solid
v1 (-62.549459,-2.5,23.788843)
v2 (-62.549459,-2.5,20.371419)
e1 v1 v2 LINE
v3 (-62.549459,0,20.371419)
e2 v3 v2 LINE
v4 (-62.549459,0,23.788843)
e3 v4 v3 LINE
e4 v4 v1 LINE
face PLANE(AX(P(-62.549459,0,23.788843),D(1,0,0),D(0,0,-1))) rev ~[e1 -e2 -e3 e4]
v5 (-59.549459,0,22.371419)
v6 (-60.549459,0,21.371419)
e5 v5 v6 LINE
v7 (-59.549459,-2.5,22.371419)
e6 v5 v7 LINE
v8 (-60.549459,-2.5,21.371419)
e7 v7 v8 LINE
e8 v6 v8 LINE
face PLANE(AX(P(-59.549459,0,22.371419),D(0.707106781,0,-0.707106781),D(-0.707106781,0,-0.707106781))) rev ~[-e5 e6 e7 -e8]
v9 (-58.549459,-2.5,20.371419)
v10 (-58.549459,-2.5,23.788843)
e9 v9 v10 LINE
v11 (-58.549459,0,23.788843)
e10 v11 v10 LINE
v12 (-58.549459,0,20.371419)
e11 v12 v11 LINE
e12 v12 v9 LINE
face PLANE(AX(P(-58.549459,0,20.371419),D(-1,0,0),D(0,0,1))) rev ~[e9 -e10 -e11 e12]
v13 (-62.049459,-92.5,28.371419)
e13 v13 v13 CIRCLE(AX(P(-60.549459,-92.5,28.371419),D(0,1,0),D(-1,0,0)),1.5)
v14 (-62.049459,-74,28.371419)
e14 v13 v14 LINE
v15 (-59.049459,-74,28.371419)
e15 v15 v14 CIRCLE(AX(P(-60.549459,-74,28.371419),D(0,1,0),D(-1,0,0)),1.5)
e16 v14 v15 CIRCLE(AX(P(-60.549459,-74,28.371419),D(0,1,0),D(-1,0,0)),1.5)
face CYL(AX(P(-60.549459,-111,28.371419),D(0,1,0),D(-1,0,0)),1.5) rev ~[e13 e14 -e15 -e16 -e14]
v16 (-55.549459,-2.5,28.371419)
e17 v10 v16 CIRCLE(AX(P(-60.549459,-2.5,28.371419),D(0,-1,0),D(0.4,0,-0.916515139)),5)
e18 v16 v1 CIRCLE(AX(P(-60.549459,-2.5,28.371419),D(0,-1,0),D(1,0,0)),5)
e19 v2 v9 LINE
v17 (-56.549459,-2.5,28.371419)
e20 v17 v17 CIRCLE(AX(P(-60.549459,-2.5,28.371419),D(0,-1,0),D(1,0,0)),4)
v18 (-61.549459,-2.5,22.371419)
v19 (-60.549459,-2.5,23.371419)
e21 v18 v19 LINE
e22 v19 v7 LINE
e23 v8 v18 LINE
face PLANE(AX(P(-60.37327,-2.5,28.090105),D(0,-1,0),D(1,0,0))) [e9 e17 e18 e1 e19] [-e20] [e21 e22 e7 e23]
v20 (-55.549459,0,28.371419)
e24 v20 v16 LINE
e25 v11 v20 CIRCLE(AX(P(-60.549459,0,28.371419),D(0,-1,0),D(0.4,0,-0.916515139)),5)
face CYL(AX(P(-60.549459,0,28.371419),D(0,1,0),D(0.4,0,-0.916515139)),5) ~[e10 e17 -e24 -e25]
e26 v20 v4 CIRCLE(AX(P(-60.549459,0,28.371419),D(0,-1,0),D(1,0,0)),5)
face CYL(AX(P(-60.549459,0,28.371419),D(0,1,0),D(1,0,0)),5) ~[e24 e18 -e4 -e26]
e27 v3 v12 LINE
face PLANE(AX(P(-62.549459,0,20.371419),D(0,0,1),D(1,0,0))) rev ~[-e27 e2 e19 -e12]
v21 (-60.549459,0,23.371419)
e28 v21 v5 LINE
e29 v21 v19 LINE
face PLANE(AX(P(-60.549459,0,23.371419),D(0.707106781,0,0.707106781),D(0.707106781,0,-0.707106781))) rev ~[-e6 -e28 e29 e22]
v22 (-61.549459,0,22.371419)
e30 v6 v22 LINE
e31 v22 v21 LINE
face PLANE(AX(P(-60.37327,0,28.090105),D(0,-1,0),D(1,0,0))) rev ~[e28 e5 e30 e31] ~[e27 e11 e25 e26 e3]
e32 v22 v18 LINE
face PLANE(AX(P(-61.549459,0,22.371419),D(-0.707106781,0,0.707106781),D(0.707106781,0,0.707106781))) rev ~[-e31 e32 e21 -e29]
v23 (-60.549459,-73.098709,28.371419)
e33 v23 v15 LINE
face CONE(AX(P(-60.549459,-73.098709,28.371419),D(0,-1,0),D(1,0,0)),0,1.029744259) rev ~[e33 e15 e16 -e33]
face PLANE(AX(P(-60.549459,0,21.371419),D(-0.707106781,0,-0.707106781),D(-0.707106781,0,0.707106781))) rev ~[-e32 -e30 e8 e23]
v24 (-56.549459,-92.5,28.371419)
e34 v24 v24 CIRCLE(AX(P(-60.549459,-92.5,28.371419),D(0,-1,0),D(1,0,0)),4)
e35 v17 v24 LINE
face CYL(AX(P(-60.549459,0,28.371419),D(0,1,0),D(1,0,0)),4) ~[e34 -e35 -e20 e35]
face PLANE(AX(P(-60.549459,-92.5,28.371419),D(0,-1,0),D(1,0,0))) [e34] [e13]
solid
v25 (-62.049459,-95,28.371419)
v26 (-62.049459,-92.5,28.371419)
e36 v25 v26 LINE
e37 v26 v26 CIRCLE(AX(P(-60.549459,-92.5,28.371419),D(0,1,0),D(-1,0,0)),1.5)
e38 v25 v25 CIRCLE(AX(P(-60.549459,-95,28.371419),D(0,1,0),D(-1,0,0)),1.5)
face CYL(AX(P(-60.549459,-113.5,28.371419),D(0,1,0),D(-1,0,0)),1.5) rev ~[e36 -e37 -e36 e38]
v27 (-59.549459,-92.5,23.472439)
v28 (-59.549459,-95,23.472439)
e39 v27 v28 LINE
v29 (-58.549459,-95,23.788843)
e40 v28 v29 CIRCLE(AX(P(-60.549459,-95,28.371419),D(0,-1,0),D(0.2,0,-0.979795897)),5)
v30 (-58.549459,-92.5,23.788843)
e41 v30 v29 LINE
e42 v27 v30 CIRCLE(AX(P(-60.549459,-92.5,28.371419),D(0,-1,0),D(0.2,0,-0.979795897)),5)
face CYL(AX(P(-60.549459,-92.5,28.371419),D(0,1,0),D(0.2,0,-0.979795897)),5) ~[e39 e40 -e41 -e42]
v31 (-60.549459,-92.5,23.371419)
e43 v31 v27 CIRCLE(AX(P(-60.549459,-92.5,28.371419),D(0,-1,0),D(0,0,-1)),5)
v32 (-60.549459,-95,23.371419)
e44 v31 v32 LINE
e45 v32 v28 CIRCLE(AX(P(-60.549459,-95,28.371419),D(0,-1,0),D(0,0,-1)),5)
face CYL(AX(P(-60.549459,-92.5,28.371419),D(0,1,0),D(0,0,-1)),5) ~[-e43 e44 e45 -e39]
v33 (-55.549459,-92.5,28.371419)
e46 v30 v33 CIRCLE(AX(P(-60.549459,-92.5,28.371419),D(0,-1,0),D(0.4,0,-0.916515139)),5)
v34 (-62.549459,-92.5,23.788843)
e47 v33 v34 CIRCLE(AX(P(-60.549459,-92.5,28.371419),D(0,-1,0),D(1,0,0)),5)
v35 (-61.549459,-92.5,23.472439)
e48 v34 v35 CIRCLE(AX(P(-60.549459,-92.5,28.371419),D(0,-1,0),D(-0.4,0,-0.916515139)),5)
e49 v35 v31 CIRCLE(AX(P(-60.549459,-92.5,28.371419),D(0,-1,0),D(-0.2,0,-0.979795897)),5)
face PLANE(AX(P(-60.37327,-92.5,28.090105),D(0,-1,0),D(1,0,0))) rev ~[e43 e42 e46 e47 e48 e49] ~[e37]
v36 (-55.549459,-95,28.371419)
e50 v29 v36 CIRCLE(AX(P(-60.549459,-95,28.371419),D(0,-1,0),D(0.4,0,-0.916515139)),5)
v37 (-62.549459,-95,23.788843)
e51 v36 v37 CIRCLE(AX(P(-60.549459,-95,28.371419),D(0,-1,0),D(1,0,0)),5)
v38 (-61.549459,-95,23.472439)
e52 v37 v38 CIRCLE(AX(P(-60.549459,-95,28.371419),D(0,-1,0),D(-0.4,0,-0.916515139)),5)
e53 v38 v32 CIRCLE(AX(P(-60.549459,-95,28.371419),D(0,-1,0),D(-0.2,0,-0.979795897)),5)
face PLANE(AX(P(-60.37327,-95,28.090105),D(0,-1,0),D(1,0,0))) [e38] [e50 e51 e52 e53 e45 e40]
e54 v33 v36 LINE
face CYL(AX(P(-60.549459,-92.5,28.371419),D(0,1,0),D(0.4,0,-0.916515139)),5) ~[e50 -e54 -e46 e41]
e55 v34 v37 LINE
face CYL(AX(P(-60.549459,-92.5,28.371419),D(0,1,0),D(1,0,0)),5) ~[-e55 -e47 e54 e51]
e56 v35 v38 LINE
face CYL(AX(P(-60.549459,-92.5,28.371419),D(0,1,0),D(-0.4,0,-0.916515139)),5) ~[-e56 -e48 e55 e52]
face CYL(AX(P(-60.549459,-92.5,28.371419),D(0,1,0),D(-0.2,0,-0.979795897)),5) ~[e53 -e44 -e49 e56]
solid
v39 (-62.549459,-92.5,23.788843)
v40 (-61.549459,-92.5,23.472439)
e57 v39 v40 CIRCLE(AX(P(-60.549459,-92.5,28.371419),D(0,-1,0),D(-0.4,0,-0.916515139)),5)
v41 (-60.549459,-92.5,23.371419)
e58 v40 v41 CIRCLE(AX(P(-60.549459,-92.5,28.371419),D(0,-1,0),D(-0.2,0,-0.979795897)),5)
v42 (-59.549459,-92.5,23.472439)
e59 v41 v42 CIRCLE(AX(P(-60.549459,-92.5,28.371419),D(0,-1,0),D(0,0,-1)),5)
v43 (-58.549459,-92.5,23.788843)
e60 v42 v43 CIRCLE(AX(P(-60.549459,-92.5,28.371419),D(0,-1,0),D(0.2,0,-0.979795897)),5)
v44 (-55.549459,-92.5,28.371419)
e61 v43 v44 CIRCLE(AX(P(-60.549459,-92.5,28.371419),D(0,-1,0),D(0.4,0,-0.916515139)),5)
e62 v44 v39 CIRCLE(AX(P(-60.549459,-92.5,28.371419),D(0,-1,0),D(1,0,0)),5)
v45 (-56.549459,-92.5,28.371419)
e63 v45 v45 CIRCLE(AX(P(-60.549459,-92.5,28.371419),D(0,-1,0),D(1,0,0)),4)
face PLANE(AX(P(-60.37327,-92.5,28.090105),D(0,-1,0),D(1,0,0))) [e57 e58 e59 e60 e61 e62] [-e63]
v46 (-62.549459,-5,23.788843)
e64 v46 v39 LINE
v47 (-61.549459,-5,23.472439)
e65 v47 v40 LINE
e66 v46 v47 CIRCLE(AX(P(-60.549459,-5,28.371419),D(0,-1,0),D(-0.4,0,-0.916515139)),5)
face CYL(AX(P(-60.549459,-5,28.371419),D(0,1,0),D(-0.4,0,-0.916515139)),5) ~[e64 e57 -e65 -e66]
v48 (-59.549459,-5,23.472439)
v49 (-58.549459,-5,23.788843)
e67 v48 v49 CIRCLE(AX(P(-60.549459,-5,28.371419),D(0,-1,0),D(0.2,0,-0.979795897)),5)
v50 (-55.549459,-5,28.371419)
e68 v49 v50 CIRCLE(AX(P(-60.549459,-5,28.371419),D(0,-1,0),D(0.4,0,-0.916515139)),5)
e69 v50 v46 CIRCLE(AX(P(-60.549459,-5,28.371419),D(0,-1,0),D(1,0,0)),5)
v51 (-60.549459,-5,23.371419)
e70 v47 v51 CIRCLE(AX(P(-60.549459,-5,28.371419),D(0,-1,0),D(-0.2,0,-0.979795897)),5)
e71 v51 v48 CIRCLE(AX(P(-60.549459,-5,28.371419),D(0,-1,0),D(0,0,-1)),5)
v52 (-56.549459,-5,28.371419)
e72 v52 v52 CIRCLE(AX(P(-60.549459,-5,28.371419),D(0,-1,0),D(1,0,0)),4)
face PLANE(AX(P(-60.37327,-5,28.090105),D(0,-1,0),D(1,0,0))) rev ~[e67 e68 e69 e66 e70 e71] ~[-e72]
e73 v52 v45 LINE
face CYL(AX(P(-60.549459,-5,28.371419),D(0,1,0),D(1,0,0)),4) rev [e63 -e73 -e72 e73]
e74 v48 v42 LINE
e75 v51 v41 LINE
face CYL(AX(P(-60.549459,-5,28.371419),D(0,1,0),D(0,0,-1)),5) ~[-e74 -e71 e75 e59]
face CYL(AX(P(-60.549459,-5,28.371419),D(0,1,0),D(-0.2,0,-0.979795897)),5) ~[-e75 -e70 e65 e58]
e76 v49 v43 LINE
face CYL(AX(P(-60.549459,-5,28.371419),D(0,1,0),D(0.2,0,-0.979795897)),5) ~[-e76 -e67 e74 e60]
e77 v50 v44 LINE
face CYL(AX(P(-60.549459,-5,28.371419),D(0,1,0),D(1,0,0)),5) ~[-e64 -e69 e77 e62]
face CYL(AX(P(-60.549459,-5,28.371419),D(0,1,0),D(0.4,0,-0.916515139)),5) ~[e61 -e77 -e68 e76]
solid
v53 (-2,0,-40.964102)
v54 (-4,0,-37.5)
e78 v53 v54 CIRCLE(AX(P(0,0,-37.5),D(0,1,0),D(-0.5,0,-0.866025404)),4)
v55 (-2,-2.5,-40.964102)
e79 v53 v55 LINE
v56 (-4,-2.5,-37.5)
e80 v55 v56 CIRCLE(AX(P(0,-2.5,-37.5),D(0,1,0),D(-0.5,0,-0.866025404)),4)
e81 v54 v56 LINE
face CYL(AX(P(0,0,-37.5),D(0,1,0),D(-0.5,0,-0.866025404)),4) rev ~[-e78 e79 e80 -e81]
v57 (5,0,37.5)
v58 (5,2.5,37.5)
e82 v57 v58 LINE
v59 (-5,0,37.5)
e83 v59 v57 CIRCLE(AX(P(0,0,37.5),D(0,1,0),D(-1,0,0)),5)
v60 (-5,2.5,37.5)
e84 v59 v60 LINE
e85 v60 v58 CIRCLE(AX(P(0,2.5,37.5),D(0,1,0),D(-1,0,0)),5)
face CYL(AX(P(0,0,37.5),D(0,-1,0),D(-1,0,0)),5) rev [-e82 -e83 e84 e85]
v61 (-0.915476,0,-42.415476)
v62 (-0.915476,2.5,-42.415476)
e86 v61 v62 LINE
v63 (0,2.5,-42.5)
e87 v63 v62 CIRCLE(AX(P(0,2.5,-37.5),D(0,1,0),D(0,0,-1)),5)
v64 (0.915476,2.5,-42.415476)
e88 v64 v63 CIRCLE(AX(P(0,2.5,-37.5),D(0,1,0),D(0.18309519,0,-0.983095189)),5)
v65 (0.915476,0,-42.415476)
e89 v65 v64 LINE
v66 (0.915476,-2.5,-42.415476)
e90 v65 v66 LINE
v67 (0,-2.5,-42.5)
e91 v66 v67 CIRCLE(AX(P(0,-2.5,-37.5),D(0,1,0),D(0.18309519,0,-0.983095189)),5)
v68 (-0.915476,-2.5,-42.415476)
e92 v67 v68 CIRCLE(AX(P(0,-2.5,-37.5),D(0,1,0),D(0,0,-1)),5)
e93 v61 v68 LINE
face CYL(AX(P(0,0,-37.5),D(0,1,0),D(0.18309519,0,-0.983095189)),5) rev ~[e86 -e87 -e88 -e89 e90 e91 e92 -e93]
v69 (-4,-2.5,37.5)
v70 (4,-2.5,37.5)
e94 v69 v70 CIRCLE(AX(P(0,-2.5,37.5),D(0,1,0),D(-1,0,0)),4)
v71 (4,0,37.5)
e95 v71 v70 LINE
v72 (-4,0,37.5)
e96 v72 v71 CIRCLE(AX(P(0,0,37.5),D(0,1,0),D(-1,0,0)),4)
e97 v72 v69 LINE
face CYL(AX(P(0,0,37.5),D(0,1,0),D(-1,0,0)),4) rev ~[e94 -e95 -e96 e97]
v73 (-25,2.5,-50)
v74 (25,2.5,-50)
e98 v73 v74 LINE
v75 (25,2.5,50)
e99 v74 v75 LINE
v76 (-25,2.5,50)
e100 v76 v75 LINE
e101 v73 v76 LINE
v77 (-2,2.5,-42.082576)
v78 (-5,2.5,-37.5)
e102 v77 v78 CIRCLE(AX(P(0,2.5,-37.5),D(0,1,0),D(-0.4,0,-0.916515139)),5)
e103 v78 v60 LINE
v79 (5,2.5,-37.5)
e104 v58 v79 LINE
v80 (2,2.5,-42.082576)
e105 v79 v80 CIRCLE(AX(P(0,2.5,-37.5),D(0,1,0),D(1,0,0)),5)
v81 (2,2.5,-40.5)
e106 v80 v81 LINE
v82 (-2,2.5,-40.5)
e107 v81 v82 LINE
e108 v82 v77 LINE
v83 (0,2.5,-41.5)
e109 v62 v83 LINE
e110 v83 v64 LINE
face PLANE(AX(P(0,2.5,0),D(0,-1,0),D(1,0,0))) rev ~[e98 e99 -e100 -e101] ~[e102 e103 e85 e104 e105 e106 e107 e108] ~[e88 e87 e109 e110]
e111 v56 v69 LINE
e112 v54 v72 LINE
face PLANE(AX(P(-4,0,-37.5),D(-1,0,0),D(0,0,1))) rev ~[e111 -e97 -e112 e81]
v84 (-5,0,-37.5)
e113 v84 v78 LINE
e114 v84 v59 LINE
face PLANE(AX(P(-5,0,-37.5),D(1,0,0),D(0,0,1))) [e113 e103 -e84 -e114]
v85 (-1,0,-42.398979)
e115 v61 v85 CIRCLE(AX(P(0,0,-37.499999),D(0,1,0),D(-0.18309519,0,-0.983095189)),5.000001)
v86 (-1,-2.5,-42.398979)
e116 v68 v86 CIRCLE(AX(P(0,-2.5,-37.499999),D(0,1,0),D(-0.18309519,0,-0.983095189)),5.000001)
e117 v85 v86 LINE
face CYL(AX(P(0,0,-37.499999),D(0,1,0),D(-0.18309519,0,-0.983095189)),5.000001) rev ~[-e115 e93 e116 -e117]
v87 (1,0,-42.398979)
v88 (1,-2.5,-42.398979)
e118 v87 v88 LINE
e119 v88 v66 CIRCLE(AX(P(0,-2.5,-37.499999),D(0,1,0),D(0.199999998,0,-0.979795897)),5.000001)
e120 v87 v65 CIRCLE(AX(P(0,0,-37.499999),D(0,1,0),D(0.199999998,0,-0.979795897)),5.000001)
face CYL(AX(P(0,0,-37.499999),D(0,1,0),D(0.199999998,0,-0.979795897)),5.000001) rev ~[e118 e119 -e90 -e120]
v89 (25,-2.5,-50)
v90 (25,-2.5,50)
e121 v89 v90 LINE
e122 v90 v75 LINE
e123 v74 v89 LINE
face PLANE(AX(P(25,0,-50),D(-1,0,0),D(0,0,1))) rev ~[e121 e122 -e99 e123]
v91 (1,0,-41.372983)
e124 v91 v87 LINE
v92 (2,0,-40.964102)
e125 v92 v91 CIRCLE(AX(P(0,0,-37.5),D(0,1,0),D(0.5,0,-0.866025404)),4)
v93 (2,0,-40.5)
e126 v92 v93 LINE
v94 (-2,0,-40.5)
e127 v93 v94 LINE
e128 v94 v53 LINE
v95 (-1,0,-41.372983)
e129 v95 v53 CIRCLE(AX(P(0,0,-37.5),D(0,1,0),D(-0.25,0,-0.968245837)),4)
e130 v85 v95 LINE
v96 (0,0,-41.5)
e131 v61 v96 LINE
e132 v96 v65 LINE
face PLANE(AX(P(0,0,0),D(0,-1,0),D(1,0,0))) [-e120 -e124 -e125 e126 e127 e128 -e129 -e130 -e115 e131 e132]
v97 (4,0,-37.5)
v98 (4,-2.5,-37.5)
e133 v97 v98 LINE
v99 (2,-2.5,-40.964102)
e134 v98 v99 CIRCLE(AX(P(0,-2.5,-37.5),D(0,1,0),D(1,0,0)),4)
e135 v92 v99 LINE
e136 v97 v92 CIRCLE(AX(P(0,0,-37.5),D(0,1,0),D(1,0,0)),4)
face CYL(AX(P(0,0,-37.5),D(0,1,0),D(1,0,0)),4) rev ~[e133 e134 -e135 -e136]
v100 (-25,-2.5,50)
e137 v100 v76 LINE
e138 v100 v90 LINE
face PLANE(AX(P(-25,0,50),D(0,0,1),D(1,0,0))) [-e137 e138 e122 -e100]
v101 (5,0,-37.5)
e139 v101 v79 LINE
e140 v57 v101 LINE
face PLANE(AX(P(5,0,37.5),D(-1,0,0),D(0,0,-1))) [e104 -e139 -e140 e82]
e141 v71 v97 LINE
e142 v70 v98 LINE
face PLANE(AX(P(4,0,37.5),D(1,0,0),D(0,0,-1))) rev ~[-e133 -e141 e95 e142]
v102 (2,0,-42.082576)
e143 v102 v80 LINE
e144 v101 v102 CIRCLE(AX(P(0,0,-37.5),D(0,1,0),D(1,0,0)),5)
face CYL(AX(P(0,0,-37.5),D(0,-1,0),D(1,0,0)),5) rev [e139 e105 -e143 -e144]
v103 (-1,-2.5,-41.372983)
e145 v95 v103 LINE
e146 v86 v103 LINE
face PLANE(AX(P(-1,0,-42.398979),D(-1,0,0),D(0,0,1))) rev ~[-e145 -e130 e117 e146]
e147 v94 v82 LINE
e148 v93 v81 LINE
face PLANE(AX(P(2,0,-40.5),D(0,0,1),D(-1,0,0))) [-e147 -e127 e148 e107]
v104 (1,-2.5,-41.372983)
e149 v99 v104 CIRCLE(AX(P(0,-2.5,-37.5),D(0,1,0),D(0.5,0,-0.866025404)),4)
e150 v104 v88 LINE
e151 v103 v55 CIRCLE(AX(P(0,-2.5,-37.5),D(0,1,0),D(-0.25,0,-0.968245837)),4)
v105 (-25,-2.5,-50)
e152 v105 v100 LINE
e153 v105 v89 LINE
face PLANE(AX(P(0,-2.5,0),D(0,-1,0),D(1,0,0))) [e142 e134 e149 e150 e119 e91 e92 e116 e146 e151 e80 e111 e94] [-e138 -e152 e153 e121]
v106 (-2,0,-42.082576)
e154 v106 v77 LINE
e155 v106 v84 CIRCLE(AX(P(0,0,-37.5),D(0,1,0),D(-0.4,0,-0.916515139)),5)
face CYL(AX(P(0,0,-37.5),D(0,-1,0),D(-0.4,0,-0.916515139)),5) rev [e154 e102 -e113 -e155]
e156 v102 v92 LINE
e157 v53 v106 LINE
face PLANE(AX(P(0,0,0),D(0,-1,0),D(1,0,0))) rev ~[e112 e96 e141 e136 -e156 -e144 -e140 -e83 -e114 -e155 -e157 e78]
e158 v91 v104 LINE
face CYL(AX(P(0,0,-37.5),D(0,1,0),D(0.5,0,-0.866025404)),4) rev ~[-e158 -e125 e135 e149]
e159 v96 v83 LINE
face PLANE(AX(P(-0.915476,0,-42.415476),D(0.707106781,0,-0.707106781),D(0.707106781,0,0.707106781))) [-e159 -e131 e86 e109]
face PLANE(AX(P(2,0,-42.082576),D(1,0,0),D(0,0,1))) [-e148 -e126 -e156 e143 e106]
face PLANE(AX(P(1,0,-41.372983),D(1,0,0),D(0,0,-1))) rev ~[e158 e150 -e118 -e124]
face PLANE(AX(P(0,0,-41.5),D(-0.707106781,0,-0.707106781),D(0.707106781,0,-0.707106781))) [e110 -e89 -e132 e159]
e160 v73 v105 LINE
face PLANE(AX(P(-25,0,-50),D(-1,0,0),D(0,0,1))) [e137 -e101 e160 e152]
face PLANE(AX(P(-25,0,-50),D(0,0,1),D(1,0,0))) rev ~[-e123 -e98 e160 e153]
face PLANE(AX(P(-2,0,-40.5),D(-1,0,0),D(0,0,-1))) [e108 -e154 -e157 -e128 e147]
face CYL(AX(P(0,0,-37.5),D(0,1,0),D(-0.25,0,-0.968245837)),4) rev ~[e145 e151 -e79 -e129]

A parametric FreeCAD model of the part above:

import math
import FreeCAD as App
import Part
import Sketcher
from FreeCAD import Vector


def add_polygon(sketch, points):
    """Adds a closed chain of lines whose ends are joined by coincident constraints."""
    first, n = sketch.GeometryCount, len(points)
    for a, b in zip(points, points[1:] + points[:1]):
        sketch.addGeometry(Part.LineSegment(App.Vector(*a, 0), App.Vector(*b, 0)), False)
    for i in range(n):
        sketch.addConstraint(Sketcher.Constraint("Coincident", first + i, 2, first + (i + 1) % n, 1))

doc = App.newDocument("Part")
body = doc.addObject("PartDesign::Body", "Body")

sketch1 = body.newObject("Sketcher::SketchObject", "Sketch")
sketch1.AttachmentSupport = (doc.getObject("XZ_Plane"), [""])
sketch1.MapMode = "FlatFace"
add_polygon(sketch1, [(-25, 50), (-25, -50), (25, -50), (25, 50)])
sketch1.addGeometry(Part.LineSegment(Vector(0, -41.5, 0), Vector(0.9, -42.4, 0)), False)
sketch1.addGeometry(Part.ArcOfCircle(Part.Circle(Vector(0, -37.5, 0), Vector(0, 0, 1), 5), math.radians(-90), math.radians(-79.45)), False)
sketch1.addGeometry(Part.ArcOfCircle(Part.Circle(Vector(0, -37.5, 0), Vector(0, 0, 1), 5), math.radians(-100.55), math.radians(-90)), False)
sketch1.addGeometry(Part.LineSegment(Vector(-0.9, -42.4, 0), Vector(0, -41.5, 0)), False)
sketch1.addGeometry(Part.ArcOfCircle(Part.Circle(Vector(0, -37.5, 0), Vector(0, 0, 1), 5), math.radians(-66), math.radians(0)), False)
sketch1.addGeometry(Part.LineSegment(Vector(2, -42.1, 0), Vector(2, -40.5, 0)), False)
sketch1.addGeometry(Part.LineSegment(Vector(2, -40.5, 0), Vector(-2, -40.5, 0)), False)
sketch1.addGeometry(Part.LineSegment(Vector(-2, -40.5, 0), Vector(-2, -42.1, 0)), False)
sketch1.addGeometry(Part.ArcOfCircle(Part.Circle(Vector(0, -37.5, 0), Vector(0, 0, 1), 5), math.radians(180), math.radians(246)), False)
sketch1.addGeometry(Part.LineSegment(Vector(-5, -37.5, 0), Vector(-5, 37.5, 0)), False)
sketch1.addGeometry(Part.ArcOfCircle(Part.Circle(Vector(0, 37.5, 0), Vector(0, 0, 1), 5), math.radians(0), math.radians(180)), False)
sketch1.addGeometry(Part.LineSegment(Vector(5, 37.5, 0), Vector(5, -37.5, 0)), False)
sketch1.addConstraint([
    Sketcher.Constraint("Coincident", 4, 2, 5, 2),
    Sketcher.Constraint("Tangent", 5, 1, 6, 2),
    Sketcher.Constraint("Coincident", 6, 1, 7, 1),
    Sketcher.Constraint("Coincident", 7, 2, 4, 1),
    Sketcher.Constraint("Coincident", 8, 1, 9, 1),
    Sketcher.Constraint("Coincident", 9, 2, 10, 1),
    Sketcher.Constraint("Coincident", 10, 2, 11, 1),
    Sketcher.Constraint("Coincident", 11, 2, 12, 2),
    Sketcher.Constraint("Tangent", 12, 1, 13, 1),
    Sketcher.Constraint("Tangent", 13, 2, 14, 2),
    Sketcher.Constraint("Tangent", 14, 1, 15, 1),
    Sketcher.Constraint("Tangent", 15, 2, 8, 2),
    Sketcher.Constraint("Vertical", 0),
    Sketcher.Constraint("Horizontal", 1),
    Sketcher.Constraint("Vertical", 2),
    Sketcher.Constraint("Horizontal", 3),
    Sketcher.Constraint("Vertical", 9),
    Sketcher.Constraint("Horizontal", 10),
    Sketcher.Constraint("Vertical", 11),
    Sketcher.Constraint("Vertical", 13),
    Sketcher.Constraint("Vertical", 15),
    Sketcher.Constraint("Coincident", 8, 3, 5, 3),
    Sketcher.Constraint("Coincident", 12, 3, 5, 3),
    Sketcher.Constraint("Equal", 5, 6),
    Sketcher.Constraint("Equal", 6, 8),
    Sketcher.Constraint("Equal", 8, 12),
    Sketcher.Constraint("Symmetric", 5, 3, 14, 3, -1, 1),
    Sketcher.Constraint("Symmetric", 0, 2, 2, 2, -1, 1),
    Sketcher.Constraint("PointOnObject", 5, 1, -2),
    Sketcher.Constraint("PointOnObject", 7, 2, -2),
    Sketcher.Constraint("Perpendicular", 4, 7),
    Sketcher.Constraint("Horizontal", 4, 2, 6, 1),
    Sketcher.Constraint("Horizontal", 8, 1, 11, 2),
    Sketcher.Constraint("Radius", 5, 5.0),
    Sketcher.Constraint("DistanceX", 1, 1, 1, 2, 50.0),
    Sketcher.Constraint("DistanceX", 10, 2, 10, 1, 4.0),
    Sketcher.Constraint("DistanceY", 0, 2, 0, 1, 100.0),
    Sketcher.Constraint("DistanceY", 13, 1, 13, 2, 75.0),
    Sketcher.Constraint("DistanceY", 5, 1, 7, 2, 1.0),
    Sketcher.Constraint("DistanceY", 7, 2, 9, 2, 1.0),
])
pad1 = body.newObject("PartDesign::Pad", "Pad")
pad1.Profile = sketch1
pad1.Length = 2.5
pad1.Reversed = True

sketch2 = body.newObject("Sketcher::SketchObject", "Sketch001")
sketch2.AttachmentSupport = (doc.getObject("XZ_Plane"), [""])
sketch2.MapMode = "FlatFace"
add_polygon(sketch2, [(-25, 50), (-25, -50), (25, -50), (25, 50)])
sketch2.addGeometry(Part.ArcOfCircle(Part.Circle(Vector(0, -37.5, 0), Vector(0, 0, 1), 4), math.radians(-120), math.radians(-104.48)), False)
sketch2.addGeometry(Part.ArcOfCircle(Part.Circle(Vector(0, -37.5, 0), Vector(0, 0, 1), 4), math.radians(180), math.radians(240)), False)
sketch2.addGeometry(Part.LineSegment(Vector(-4, -37.5, 0), Vector(-4, 37.5, 0)), False)
sketch2.addGeometry(Part.ArcOfCircle(Part.Circle(Vector(0, 37.5, 0), Vector(0, 0, 1), 4), math.radians(0), math.radians(180)), False)
sketch2.addGeometry(Part.LineSegment(Vector(4, 37.5, 0), Vector(4, -37.5, 0)), False)
sketch2.addGeometry(Part.ArcOfCircle(Part.Circle(Vector(0, -37.5, 0), Vector(0, 0, 1), 4), math.radians(-60), math.radians(0)), False)
sketch2.addGeometry(Part.ArcOfCircle(Part.Circle(Vector(0, -37.5, 0), Vector(0, 0, 1), 4), math.radians(-75.52), math.radians(-60)), False)
sketch2.addGeometry(Part.LineSegment(Vector(1, -41.37, 0), Vector(1, -42.4, 0)), False)
sketch2.addGeometry(Part.ArcOfCircle(Part.Circle(Vector(0, -37.5, 0), Vector(0, 0, 1), 5), math.radians(-79.45), math.radians(-78.46)), False)
sketch2.addGeometry(Part.ArcOfCircle(Part.Circle(Vector(0, -37.5, 0), Vector(0, 0, 1), 5), math.radians(-90), math.radians(-79.45)), False)
sketch2.addGeometry(Part.ArcOfCircle(Part.Circle(Vector(0, -37.5, 0), Vector(0, 0, 1), 5), math.radians(-100.55), math.radians(-90)), False)
sketch2.addGeometry(Part.ArcOfCircle(Part.Circle(Vector(0, -37.5, 0), Vector(0, 0, 1), 5), math.radians(-101.54), math.radians(-100.55)), False)
sketch2.addGeometry(Part.LineSegment(Vector(-1, -42.4, 0), Vector(-1, -41.37, 0)), False)
sketch2.addConstraint([
    Sketcher.Constraint("Tangent", 4, 1, 5, 2),
    Sketcher.Constraint("Tangent", 5, 1, 6, 1),
    Sketcher.Constraint("Tangent", 6, 2, 7, 2),
    Sketcher.Constraint("Tangent", 7, 1, 8, 1),
    Sketcher.Constraint("Tangent", 8, 2, 9, 2),
    Sketcher.Constraint("Tangent", 9, 1, 10, 2),
    Sketcher.Constraint("Coincident", 10, 1, 11, 1),
    Sketcher.Constraint("Coincident", 11, 2, 12, 2),
    Sketcher.Constraint("Tangent", 12, 1, 13, 2),
    Sketcher.Constraint("Tangent", 13, 1, 14, 2),
    Sketcher.Constraint("Tangent", 14, 1, 15, 2),
    Sketcher.Constraint("Coincident", 15, 1, 16, 1),
    Sketcher.Constraint("Coincident", 16, 2, 4, 2),
    Sketcher.Constraint("Vertical", 0),
    Sketcher.Constraint("Horizontal", 1),
    Sketcher.Constraint("Vertical", 2),
    Sketcher.Constraint("Horizontal", 3),
    Sketcher.Constraint("Vertical", 6),
    Sketcher.Constraint("Vertical", 8),
    Sketcher.Constraint("Vertical", 11),
    Sketcher.Constraint("Vertical", 16),
    Sketcher.Constraint("Coincident", 9, 3, 4, 3),
    Sketcher.Constraint("Coincident", 12, 3, 4, 3),
    Sketcher.Constraint("Coincident", 14, 3, 4, 3),
    Sketcher.Constraint("Equal", 4, 5),
    Sketcher.Constraint("Equal", 5, 7),
    Sketcher.Constraint("Equal", 9, 10),
    Sketcher.Constraint("Equal", 14, 15),
    Sketcher.Constraint("Symmetric", 4, 3, 7, 3, -1, 1),
    Sketcher.Constraint("Symmetric", 0, 2, 2, 2, -1, 1),
    Sketcher.Constraint("PointOnObject", 13, 1, -2),
    Sketcher.Constraint("Horizontal", 4, 1, 9, 1),
    Sketcher.Constraint("Horizontal", 12, 1, 14, 1),
    Sketcher.Constraint("Horizontal", 11, 2, 15, 1),
    Sketcher.Constraint("Radius", 4, 4.0),
    Sketcher.Constraint("Radius", 12, 5.000001),
    Sketcher.Constraint("DistanceX", 1, 1, 1, 2, 50.0),
    Sketcher.Constraint("DistanceY", 0, 2, 0, 1, 100.0),
    Sketcher.Constraint("DistanceY", 6, 1, 6, 2, 75.0),
    Sketcher.Constraint("DistanceX", 4, 1, -1, 1, 2.0),
    Sketcher.Constraint("DistanceX", -1, 1, 10, 1, 1.0),
    Sketcher.Constraint("DistanceX", 14, 1, 12, 1, 1.830952),
])
pad2 = body.newObject("PartDesign::Pad", "Pad001")
pad2.Profile = sketch2
pad2.Length = 2.5
body2 = doc.addObject("PartDesign::Body", "Body001")

sketch3 = body2.newObject("Sketcher::SketchObject", "Sketch002")
sketch3.AttachmentSupport = (doc.getObject("XZ_Plane001"), [""])
sketch3.MapMode = "FlatFace"
sketch3.addGeometry(Part.ArcOfCircle(Part.Circle(Vector(-60.5, 28.4, 0), Vector(0, 0, 1), 5), math.radians(-66), math.radians(0)), False)
sketch3.addGeometry(Part.ArcOfCircle(Part.Circle(Vector(-60.5, 28.4, 0), Vector(0, 0, 1), 5), math.radians(0), math.radians(246)), False)
sketch3.addGeometry(Part.LineSegment(Vector(-62.5, 23.8, 0), Vector(-62.5, 20.4, 0)), False)
sketch3.addGeometry(Part.LineSegment(Vector(-62.5, 20.4, 0), Vector(-58.5, 20.4, 0)), False)
sketch3.addGeometry(Part.LineSegment(Vector(-58.5, 20.4, 0), Vector(-58.5, 23.8, 0)), False)
add_polygon(sketch3, [(-60.5, 21.4), (-61.5, 22.4), (-60.5, 23.4), (-59.5, 22.4)])
sketch3.addGeometry(Part.Circle(Vector(-60.5, 28.4, 0), Vector(0, 0, 1), 4), False)
sketch3.addConstraint([
    Sketcher.Constraint("Tangent", 0, 2, 1, 1),
    Sketcher.Constraint("Coincident", 1, 2, 2, 1),
    Sketcher.Constraint("Coincident", 2, 2, 3, 1),
    Sketcher.Constraint("Coincident", 3, 2, 4, 1),
    Sketcher.Constraint("Coincident", 4, 2, 0, 1),
    Sketcher.Constraint("Vertical", 2),
    Sketcher.Constraint("Horizontal", 3),
    Sketcher.Constraint("Vertical", 4),
    Sketcher.Constraint("Coincident", 9, 3, 0, 3),
    Sketcher.Constraint("Equal", 0, 1),
    Sketcher.Constraint("Perpendicular", 5, 6),
    Sketcher.Constraint("Perpendicular", 6, 7),
    Sketcher.Constraint("Perpendicular", 7, 8),
    Sketcher.Constraint("Horizontal", 9, 3, 0, 2),
    Sketcher.Constraint("Horizontal", 1, 2, 4, 2),
    Sketcher.Constraint("Horizontal", 5, 2, 7, 2),
    Sketcher.Constraint("Vertical", 9, 3, 6, 2),
    Sketcher.Constraint("Vertical", 6, 2, 8, 2),
    Sketcher.Constraint("Diameter", 9, 8.0),
    Sketcher.Constraint("Radius", 0, 5.0),
    Sketcher.Constraint("DistanceX", 3, 1, 3, 2, 4.0),
    Sketcher.Constraint("DistanceY", 2, 2, 0, 3, 8.0),
    Sketcher.Constraint("DistanceX", 1, 2, 5, 2, 1.0),
    Sketcher.Constraint("DistanceY", 2, 2, 5, 2, 2.0),
    Sketcher.Constraint("DistanceX", 0, 3, -1, 1, 60.549459),
    Sketcher.Constraint("DistanceY", -1, 1, 0, 3, 28.371419),
])
pad3 = body2.newObject("PartDesign::Pad", "Pad002")
pad3.Profile = sketch3
pad3.Length = 2.5

sketch4 = body2.newObject("Sketcher::SketchObject", "Sketch003")
sketch4.AttachmentSupport = (doc.getObject("XZ_Plane001"), [""])
sketch4.MapMode = "FlatFace"
sketch4.addGeometry(Part.Circle(Vector(-60.5, 28.4, 0), Vector(0, 0, 1), 4), False)
sketch4.addConstraint([
    Sketcher.Constraint("Diameter", 0, 8.0),
    Sketcher.Constraint("DistanceX", 0, 3, -1, 1, 60.549459),
    Sketcher.Constraint("DistanceY", -1, 1, 0, 3, 28.371419),
])
pad4 = body2.newObject("PartDesign::Pad", "Pad003")
pad4.Profile = sketch4
pad4.Length = 92.5

sketch5 = body2.newObject("Sketcher::SketchObject", "Sketch004")
sketch5.AttachmentSupport = (doc.getObject("XZ_Plane001"), [""])
sketch5.MapMode = "FlatFace"
sketch5.AttachmentOffset = App.Placement(Vector(0, 0, 92.5), App.Rotation())
sketch5.addGeometry(Part.Circle(Vector(-60.5, 28.4, 0), Vector(0, 0, 1), 1.5), False)
sketch5.addConstraint([
    Sketcher.Constraint("Diameter", 0, 3.0),
    Sketcher.Constraint("DistanceX", 0, 3, -1, 1, 60.549459),
    Sketcher.Constraint("DistanceY", -1, 1, 0, 3, 28.371419),
])
doc.recompute()
hole = body2.newObject("PartDesign::Hole", "Hole")
hole.Profile = sketch5
hole.ThreadType = "None"
hole.Diameter = 3
hole.DepthType = "Dimension"
hole.Depth = 18.5
hole.DrillPoint = "Angled"
hole.DrillPointAngle = 118
body3 = doc.addObject("PartDesign::Body", "Body002")

sketch6 = body3.newObject("Sketcher::SketchObject", "Sketch005")
sketch6.AttachmentSupport = (doc.getObject("XZ_Plane002"), [""])
sketch6.MapMode = "FlatFace"
sketch6.AttachmentOffset = App.Placement(Vector(0, 0, 5), App.Rotation())
sketch6.addGeometry([
    Part.ArcOfCircle(Part.Circle(Vector(-60.5, 28.4, 0), Vector(0, 0, 1), 5), math.radians(-66), math.radians(0)),
    Part.ArcOfCircle(Part.Circle(Vector(-60.5, 28.4, 0), Vector(0, 0, 1), 5), math.radians(0), math.radians(246)),
    Part.ArcOfCircle(Part.Circle(Vector(-60.5, 28.4, 0), Vector(0, 0, 1), 5), math.radians(-113.58), math.radians(-101.54)),
    Part.ArcOfCircle(Part.Circle(Vector(-60.5, 28.4, 0), Vector(0, 0, 1), 5), math.radians(-101.54), math.radians(-90)),
    Part.ArcOfCircle(Part.Circle(Vector(-60.5, 28.4, 0), Vector(0, 0, 1), 5), math.radians(-90), math.radians(-78.46)),
    Part.ArcOfCircle(Part.Circle(Vector(-60.5, 28.4, 0), Vector(0, 0, 1), 5), math.radians(-78.46), math.radians(-66.42)),
    Part.Circle(Vector(-60.5, 28.4, 0), Vector(0, 0, 1), 4),
], False)
sketch6.addConstraint([
    Sketcher.Constraint("Tangent", 0, 2, 1, 1),
    Sketcher.Constraint("Tangent", 1, 2, 2, 1),
    Sketcher.Constraint("Tangent", 2, 2, 3, 1),
    Sketcher.Constraint("Tangent", 3, 2, 4, 1),
    Sketcher.Constraint("Tangent", 4, 2, 5, 1),
    Sketcher.Constraint("Tangent", 5, 2, 0, 1),
    Sketcher.Constraint("Coincident", 2, 3, 0, 3),
    Sketcher.Constraint("Coincident", 6, 3, 0, 3),
    Sketcher.Constraint("Equal", 2, 3),
    Sketcher.Constraint("Horizontal", 6, 3, 0, 2),
    Sketcher.Constraint("Horizontal", 2, 2, 4, 2),
    Sketcher.Constraint("Horizontal", 1, 2, 5, 2),
    Sketcher.Constraint("Vertical", 6, 3, 3, 2),
    Sketcher.Constraint("Diameter", 6, 8.0),
    Sketcher.Constraint("Radius", 0, 5.0),
    Sketcher.Constraint("DistanceX", 1, 2, 2, 3, 2.0),
    Sketcher.Constraint("DistanceX", 1, 2, 2, 2, 1.0),
    Sketcher.Constraint("DistanceX", 0, 3, -1, 1, 60.549459),
    Sketcher.Constraint("DistanceY", -1, 1, 0, 3, 28.371419),
])
pad5 = body3.newObject("PartDesign::Pad", "Pad004")
pad5.Profile = sketch6
pad5.Length = 87.5
body4 = doc.addObject("PartDesign::Body", "Body003")

sketch7 = body4.newObject("Sketcher::SketchObject", "Sketch006")
sketch7.AttachmentSupport = (doc.getObject("XZ_Plane003"), [""])
sketch7.MapMode = "FlatFace"
sketch7.AttachmentOffset = App.Placement(Vector(0, 0, 92.5), App.Rotation())
sketch7.addGeometry([
    Part.ArcOfCircle(Part.Circle(Vector(-60.5, 28.4, 0), Vector(0, 0, 1), 5), math.radians(-66), math.radians(0)),
    Part.ArcOfCircle(Part.Circle(Vector(-60.5, 28.4, 0), Vector(0, 0, 1), 5), math.radians(0), math.radians(246)),
    Part.ArcOfCircle(Part.Circle(Vector(-60.5, 28.4, 0), Vector(0, 0, 1), 5), math.radians(-113.58), math.radians(-101.54)),
    Part.ArcOfCircle(Part.Circle(Vector(-60.5, 28.4, 0), Vector(0, 0, 1), 5), math.radians(-101.54), math.radians(-90)),
    Part.ArcOfCircle(Part.Circle(Vector(-60.5, 28.4, 0), Vector(0, 0, 1), 5), math.radians(-90), math.radians(-78.46)),
    Part.ArcOfCircle(Part.Circle(Vector(-60.5, 28.4, 0), Vector(0, 0, 1), 5), math.radians(-78.46), math.radians(-66.42)),
], False)
sketch7.addConstraint([
    Sketcher.Constraint("Tangent", 0, 2, 1, 1),
    Sketcher.Constraint("Tangent", 1, 2, 2, 1),
    Sketcher.Constraint("Tangent", 2, 2, 3, 1),
    Sketcher.Constraint("Tangent", 3, 2, 4, 1),
    Sketcher.Constraint("Tangent", 4, 2, 5, 1),
    Sketcher.Constraint("Tangent", 5, 2, 0, 1),
    Sketcher.Constraint("Coincident", 2, 3, 0, 3),
    Sketcher.Constraint("Equal", 2, 3),
    Sketcher.Constraint("Horizontal", 5, 3, 0, 2),
    Sketcher.Constraint("Horizontal", 2, 2, 4, 2),
    Sketcher.Constraint("Horizontal", 1, 2, 5, 2),
    Sketcher.Constraint("Vertical", 5, 3, 3, 2),
    Sketcher.Constraint("Radius", 0, 5.0),
    Sketcher.Constraint("DistanceX", 1, 2, 2, 3, 2.0),
    Sketcher.Constraint("DistanceX", 1, 2, 2, 2, 1.0),
    Sketcher.Constraint("DistanceX", 0, 3, -1, 1, 60.549459),
    Sketcher.Constraint("DistanceY", -1, 1, 0, 3, 28.371419),
])
pad6 = body4.newObject("PartDesign::Pad", "Pad005")
pad6.Profile = sketch7
pad6.Length = 2.5

sketch8 = body4.newObject("Sketcher::SketchObject", "Sketch007")
sketch8.AttachmentSupport = (doc.getObject("XZ_Plane003"), [""])
sketch8.MapMode = "FlatFace"
sketch8.AttachmentOffset = App.Placement(Vector(0, 0, 95), App.Rotation())
sketch8.addGeometry(Part.Circle(Vector(-60.5, 28.4, 0), Vector(0, 0, 1), 1.5), False)
sketch8.addConstraint([
    Sketcher.Constraint("Diameter", 0, 3.0),
    Sketcher.Constraint("DistanceX", 0, 3, -1, 1, 60.549459),
    Sketcher.Constraint("DistanceY", -1, 1, 0, 3, 28.371419),
])
doc.recompute()
hole2 = body4.newObject("PartDesign::Hole", "Hole001")
hole2.Profile = sketch8
hole2.ThreadType = "None"
hole2.Diameter = 3
hole2.DepthType = "Dimension"
hole2.Depth = 18.5
hole2.DrillPoint = "Angled"
hole2.DrillPointAngle = 118

doc.recompute()
